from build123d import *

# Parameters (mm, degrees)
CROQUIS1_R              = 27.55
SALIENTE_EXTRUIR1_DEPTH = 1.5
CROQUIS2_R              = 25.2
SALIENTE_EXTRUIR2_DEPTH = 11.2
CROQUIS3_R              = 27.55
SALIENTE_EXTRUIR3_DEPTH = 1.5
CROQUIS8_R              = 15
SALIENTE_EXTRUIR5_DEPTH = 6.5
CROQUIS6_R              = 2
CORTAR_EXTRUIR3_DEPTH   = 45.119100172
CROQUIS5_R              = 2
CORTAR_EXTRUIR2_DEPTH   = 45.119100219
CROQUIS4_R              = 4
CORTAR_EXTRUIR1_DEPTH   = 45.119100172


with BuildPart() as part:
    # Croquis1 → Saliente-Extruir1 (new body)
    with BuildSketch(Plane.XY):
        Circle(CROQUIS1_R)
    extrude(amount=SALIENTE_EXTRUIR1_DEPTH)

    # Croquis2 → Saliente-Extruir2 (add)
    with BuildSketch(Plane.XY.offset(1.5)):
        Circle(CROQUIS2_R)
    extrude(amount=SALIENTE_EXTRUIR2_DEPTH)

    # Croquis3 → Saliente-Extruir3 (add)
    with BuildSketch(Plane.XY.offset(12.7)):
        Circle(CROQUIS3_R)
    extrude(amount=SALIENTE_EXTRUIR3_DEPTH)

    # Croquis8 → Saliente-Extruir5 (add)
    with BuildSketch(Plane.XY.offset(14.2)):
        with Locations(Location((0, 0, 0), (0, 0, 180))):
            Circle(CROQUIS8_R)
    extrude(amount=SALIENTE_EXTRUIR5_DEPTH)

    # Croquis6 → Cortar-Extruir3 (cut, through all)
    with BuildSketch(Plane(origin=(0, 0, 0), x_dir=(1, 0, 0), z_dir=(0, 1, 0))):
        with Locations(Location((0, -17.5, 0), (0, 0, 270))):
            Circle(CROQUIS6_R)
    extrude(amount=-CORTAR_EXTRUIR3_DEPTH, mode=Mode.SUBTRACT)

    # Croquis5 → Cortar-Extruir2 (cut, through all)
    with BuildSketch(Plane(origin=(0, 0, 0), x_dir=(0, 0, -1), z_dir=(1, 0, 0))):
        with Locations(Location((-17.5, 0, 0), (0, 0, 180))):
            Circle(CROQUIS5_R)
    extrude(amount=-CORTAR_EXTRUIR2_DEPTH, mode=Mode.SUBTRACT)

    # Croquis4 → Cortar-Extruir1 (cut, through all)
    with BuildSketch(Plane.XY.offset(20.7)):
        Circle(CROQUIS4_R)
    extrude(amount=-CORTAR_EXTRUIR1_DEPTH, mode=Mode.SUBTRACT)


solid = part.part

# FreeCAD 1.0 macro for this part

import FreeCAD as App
import Part
import Sketcher
from FreeCAD import Vector

doc = App.newDocument("Part")
body = doc.addObject("PartDesign::Body", "Body")

# Sketch on XY plane
sketch1 = doc.addObject("Sketcher::SketchObject", "Sketch")
body.addObject(sketch1)
sketch1.AttachmentSupport = (doc.XY_Plane, [""])
sketch1.MapMode = "FlatFace"
sketch1.addGeometry(Part.Circle(Vector(0, 0, 0), Vector(0, 0, 1), 28), False)
sketch1.addConstraint([
    Sketcher.Constraint("Coincident", 0, 3, -1, 1),
    Sketcher.Constraint("Diameter", 0, 55.1),
])
pad1 = doc.addObject("PartDesign::Pad", "Pad")
body.addObject(pad1)
pad1.Profile = sketch1
pad1.Length = 1.5

# Sketch on XY plane
sketch2 = doc.addObject("Sketcher::SketchObject", "Sketch001")
body.addObject(sketch2)
sketch2.AttachmentSupport = (doc.XY_Plane, [""])
sketch2.MapMode = "FlatFace"
sketch2.AttachmentOffset = App.Placement(Vector(0, 0, 1.5), App.Rotation())
sketch2.addGeometry(Part.Circle(Vector(0, 0, 0), Vector(0, 0, 1), 25), False)
sketch2.addConstraint([
    Sketcher.Constraint("Coincident", 0, 3, -1, 1),
    Sketcher.Constraint("Diameter", 0, 50.4),
])
pad2 = doc.addObject("PartDesign::Pad", "Pad001")
body.addObject(pad2)
pad2.Profile = sketch2
pad2.Length = 11.2

# Sketch on XY plane
sketch3 = doc.addObject("Sketcher::SketchObject", "Sketch002")
body.addObject(sketch3)
sketch3.AttachmentSupport = (doc.XY_Plane, [""])
sketch3.MapMode = "FlatFace"
sketch3.AttachmentOffset = App.Placement(Vector(0, 0, 12.7), App.Rotation())
sketch3.addGeometry(Part.Circle(Vector(0, 0, 0), Vector(0, 0, 1), 28), False)
sketch3.addConstraint([
    Sketcher.Constraint("Coincident", 0, 3, -1, 1),
    Sketcher.Constraint("Diameter", 0, 55.1),
])
pad3 = doc.addObject("PartDesign::Pad", "Pad002")
body.addObject(pad3)
pad3.Profile = sketch3
pad3.Length = 1.5

# Sketch on XY plane
sketch4 = doc.addObject("Sketcher::SketchObject", "Sketch003")
body.addObject(sketch4)
sketch4.AttachmentSupport = (doc.XY_Plane, [""])
sketch4.MapMode = "FlatFace"
sketch4.AttachmentOffset = App.Placement(Vector(0, 0, 14.2), App.Rotation())
sketch4.addGeometry(Part.Circle(Vector(0, 0, 0), Vector(0, 0, 1), 15), False)
sketch4.addConstraint([
    Sketcher.Constraint("Coincident", 0, 3, -1, 1),
    Sketcher.Constraint("Diameter", 0, 30.0),
])
pad4 = doc.addObject("PartDesign::Pad", "Pad003")
body.addObject(pad4)
pad4.Profile = sketch4
pad4.Length = 6.5

# Sketch on XZ plane
sketch5 = doc.addObject("Sketcher::SketchObject", "Sketch004")
body.addObject(sketch5)
sketch5.AttachmentSupport = (doc.XZ_Plane, [""])
sketch5.MapMode = "FlatFace"
sketch5.addGeometry(Part.Circle(Vector(0, 17.5, 0), Vector(0, 0, 1), 2), False)
sketch5.addConstraint([
    Sketcher.Constraint("PointOnObject", 0, 3, -2),
    Sketcher.Constraint("Diameter", 0, 4.0),
    Sketcher.Constraint("DistanceY", -1, 1, 0, 3, 17.5),
])
pocket1 = doc.addObject("PartDesign::Pocket", "Pocket")
body.addObject(pocket1)
pocket1.Profile = sketch5
pocket1.Type = "ThroughAll"
pocket1.Reversed = True

# Sketch on YZ plane
sketch6 = doc.addObject("Sketcher::SketchObject", "Sketch005")
body.addObject(sketch6)
sketch6.AttachmentSupport = (doc.YZ_Plane, [""])
sketch6.MapMode = "FlatFace"
sketch6.addGeometry(Part.Circle(Vector(0, 17.5, 0), Vector(0, 0, 1), 2), False)
sketch6.addConstraint([
    Sketcher.Constraint("PointOnObject", 0, 3, -2),
    Sketcher.Constraint("Diameter", 0, 4.0),
    Sketcher.Constraint("DistanceY", -1, 1, 0, 3, 17.5),
])
pocket2 = doc.addObject("PartDesign::Pocket", "Pocket001")
body.addObject(pocket2)
pocket2.Profile = sketch6
pocket2.Type = "ThroughAll"

# Sketch on XY plane
sketch7 = doc.addObject("Sketcher::SketchObject", "Sketch006")
body.addObject(sketch7)
sketch7.AttachmentSupport = (doc.XY_Plane, [""])
sketch7.MapMode = "FlatFace"
sketch7.AttachmentOffset = App.Placement(Vector(0, 0, 20.7), App.Rotation())
sketch7.addGeometry(Part.Circle(Vector(0, 0, 0), Vector(0, 0, 1), 4), False)
sketch7.addConstraint([
    Sketcher.Constraint("Coincident", 0, 3, -1, 1),
    Sketcher.Constraint("Diameter", 0, 8.0),
])
pocket3 = doc.addObject("PartDesign::Pocket", "Pocket002")
body.addObject(pocket3)
pocket3.Profile = sketch7
pocket3.Type = "ThroughAll"

doc.recompute()
